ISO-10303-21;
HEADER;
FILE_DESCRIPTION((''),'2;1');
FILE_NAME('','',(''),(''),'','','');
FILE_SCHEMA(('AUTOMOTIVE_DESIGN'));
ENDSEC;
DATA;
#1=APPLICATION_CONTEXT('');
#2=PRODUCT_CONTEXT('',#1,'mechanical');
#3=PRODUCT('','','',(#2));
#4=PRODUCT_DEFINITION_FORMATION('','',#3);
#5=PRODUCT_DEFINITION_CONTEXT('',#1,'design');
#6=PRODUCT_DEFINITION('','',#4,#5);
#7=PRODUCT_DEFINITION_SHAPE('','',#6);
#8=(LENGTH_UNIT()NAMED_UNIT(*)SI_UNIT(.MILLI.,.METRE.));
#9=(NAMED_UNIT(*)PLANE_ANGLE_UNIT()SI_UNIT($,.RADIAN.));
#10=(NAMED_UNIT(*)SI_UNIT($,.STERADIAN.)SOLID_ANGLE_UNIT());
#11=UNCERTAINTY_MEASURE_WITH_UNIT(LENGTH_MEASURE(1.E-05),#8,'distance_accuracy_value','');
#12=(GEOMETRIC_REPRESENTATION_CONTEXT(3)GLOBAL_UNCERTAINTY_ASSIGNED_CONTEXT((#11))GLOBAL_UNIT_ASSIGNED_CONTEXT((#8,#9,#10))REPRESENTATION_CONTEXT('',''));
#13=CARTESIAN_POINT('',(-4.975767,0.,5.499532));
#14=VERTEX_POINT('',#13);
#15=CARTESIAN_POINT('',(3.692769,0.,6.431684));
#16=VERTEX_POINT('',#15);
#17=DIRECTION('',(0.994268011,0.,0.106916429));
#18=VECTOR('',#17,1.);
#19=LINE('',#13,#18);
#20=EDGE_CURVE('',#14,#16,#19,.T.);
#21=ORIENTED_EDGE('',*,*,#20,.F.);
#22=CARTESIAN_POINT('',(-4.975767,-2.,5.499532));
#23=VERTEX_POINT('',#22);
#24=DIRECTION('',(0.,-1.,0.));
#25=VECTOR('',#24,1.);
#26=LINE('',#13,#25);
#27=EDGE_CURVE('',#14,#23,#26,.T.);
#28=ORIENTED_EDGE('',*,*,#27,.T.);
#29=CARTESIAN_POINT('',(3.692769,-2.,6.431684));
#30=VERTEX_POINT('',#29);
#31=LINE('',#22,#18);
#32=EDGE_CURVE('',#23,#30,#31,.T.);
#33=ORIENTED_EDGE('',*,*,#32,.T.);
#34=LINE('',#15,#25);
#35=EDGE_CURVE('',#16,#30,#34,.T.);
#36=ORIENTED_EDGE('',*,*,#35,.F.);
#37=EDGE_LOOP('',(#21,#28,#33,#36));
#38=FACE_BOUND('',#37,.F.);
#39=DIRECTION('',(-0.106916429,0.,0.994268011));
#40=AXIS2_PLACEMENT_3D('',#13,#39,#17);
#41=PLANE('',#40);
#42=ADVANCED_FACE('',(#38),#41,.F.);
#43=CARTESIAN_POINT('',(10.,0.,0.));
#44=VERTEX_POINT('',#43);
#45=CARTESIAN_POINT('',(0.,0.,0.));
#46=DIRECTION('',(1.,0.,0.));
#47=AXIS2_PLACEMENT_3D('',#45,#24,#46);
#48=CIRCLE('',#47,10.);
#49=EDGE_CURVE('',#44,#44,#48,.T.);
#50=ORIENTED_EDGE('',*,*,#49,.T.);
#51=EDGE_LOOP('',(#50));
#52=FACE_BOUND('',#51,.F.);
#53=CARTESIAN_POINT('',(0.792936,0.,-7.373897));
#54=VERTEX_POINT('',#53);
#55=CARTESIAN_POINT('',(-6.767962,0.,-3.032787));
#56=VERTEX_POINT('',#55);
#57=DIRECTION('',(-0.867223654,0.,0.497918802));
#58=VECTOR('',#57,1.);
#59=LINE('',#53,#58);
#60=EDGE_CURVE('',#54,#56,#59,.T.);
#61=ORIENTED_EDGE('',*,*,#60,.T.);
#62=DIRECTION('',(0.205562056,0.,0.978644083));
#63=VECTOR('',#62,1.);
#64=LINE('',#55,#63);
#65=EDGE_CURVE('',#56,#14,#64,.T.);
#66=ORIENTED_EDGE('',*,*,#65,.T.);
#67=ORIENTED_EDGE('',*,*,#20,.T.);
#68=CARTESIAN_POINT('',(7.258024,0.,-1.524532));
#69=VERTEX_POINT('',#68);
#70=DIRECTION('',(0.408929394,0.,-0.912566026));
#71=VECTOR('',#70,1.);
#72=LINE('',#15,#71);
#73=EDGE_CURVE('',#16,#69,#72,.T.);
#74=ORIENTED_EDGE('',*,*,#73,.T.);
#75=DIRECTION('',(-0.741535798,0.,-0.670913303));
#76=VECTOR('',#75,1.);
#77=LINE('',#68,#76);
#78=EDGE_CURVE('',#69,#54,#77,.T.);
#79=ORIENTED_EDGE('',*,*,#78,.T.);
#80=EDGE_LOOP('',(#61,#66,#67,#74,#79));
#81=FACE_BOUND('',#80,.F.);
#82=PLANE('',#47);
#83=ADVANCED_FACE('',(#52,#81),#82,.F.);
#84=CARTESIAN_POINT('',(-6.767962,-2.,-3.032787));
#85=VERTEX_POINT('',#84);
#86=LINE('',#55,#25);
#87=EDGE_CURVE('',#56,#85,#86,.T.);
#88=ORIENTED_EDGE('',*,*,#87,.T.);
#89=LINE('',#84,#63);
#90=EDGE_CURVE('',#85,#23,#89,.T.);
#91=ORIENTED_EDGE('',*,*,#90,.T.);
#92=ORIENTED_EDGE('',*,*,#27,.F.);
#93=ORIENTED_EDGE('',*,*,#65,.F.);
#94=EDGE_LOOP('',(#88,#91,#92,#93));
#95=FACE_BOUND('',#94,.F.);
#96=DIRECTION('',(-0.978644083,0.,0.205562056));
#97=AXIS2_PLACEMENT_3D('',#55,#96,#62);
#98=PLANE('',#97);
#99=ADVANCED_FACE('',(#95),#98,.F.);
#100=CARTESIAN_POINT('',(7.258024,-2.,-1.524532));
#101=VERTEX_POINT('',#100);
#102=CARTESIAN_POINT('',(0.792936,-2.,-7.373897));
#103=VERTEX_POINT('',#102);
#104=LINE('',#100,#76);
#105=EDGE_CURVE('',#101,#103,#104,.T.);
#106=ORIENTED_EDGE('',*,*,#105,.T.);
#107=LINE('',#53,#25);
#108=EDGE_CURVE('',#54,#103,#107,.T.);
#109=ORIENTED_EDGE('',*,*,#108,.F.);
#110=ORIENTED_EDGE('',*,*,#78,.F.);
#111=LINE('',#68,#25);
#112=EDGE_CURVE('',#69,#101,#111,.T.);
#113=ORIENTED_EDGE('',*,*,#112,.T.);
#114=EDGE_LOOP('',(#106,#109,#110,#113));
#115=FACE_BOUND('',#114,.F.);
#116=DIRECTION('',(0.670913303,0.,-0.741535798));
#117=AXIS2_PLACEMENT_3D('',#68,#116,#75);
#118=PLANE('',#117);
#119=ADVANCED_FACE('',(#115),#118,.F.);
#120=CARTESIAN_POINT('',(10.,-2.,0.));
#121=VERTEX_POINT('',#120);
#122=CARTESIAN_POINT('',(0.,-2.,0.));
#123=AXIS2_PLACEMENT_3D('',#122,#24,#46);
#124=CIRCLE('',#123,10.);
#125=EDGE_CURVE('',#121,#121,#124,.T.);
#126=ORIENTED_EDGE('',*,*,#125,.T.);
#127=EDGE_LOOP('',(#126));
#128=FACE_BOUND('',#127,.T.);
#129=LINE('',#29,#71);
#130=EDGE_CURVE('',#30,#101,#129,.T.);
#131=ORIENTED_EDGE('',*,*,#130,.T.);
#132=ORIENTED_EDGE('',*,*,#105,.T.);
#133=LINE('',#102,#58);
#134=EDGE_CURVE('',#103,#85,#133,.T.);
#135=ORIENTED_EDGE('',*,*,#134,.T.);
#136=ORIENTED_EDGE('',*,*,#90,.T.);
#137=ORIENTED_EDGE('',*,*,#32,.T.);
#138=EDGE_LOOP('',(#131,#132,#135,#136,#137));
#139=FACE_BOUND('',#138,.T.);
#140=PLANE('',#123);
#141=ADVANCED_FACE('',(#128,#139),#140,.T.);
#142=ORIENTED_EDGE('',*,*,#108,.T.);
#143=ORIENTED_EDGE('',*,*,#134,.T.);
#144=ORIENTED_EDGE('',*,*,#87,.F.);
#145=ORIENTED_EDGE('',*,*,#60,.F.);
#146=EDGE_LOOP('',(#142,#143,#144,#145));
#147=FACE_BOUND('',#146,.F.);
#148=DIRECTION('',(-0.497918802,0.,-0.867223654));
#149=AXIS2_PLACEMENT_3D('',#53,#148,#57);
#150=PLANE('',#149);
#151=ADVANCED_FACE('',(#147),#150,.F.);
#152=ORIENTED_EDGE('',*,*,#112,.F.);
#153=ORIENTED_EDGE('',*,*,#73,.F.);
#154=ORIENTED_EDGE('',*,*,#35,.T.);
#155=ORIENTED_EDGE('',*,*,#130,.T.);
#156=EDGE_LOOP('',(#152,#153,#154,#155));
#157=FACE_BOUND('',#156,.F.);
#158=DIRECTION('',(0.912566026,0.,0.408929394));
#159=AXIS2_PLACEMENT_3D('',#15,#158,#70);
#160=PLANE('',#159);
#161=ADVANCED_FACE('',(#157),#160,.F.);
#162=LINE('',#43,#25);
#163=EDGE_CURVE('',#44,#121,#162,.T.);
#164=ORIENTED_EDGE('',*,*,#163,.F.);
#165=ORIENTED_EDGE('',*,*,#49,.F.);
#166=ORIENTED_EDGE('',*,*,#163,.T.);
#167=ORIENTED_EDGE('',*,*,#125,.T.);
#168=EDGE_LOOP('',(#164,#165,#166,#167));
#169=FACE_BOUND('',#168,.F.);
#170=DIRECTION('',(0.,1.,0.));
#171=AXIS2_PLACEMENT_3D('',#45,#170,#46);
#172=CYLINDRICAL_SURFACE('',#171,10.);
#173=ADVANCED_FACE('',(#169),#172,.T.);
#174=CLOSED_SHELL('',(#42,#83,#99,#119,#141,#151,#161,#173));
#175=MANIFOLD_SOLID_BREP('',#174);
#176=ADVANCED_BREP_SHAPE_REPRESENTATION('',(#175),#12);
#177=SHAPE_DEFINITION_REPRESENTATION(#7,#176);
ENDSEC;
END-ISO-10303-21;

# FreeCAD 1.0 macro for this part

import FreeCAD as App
import Part
import Sketcher

V = App.Vector


def add_polygon(sketch, points):
    """Adds a closed chain of lines whose ends are joined by coincident constraints."""
    first, n = sketch.GeometryCount, len(points)
    for a, b in zip(points, points[1:] + points[:1]):
        sketch.addGeometry(Part.LineSegment(App.Vector(*a, 0), App.Vector(*b, 0)), False)
    for i in range(n):
        sketch.addConstraint(Sketcher.Constraint("Coincident", first + i, 2, first + (i + 1) % n, 1))

doc = App.newDocument("Part")
body = doc.addObject("PartDesign::Body", "Body")

# Sketch on XZ plane
sketch1 = body.newObject("Sketcher::SketchObject", "Sketch")
sketch1.AttachmentSupport = (doc.getObject("XZ_Plane"), [""])
sketch1.MapMode = "FlatFace"
sketch1.addGeometry(Part.Circle(V(0, 0, 0), V(0, 0, 1), 10), False)  # 0
add_polygon(sketch1, [(-4.975767, 5.499532), (3.692769, 6.431684), (7.258024, -1.524532), (0.792936, -7.373897), (-6.767962, -3.032787)])  # lines 1-5
sketch1.addConstraint(Sketcher.Constraint("Coincident", 0, 3, -1, 1))
sketch1.addConstraint(Sketcher.Constraint("Equal", 1, 2))
sketch1.addConstraint(Sketcher.Constraint("Equal", 2, 3))
sketch1.addConstraint(Sketcher.Constraint("Equal", 3, 4))
sketch1.addConstraint(Sketcher.Constraint("Equal", 4, 5))
sketch1.addConstraint(Sketcher.Constraint("Diameter", 0, 20.0))
sketch1.addConstraint(Sketcher.Constraint("Distance", 1, 8.71851))
sketch1.addConstraint(Sketcher.Constraint("DistanceX", -1, 1, 1, 2, 3.692769))
sketch1.addConstraint(Sketcher.Constraint("DistanceX", 4, 2, -1, 1, 6.767962))
sketch1.addConstraint(Sketcher.Constraint("DistanceY", 3, 2, 1, 2, 13.805581))
sketch1.addConstraint(Sketcher.Constraint("DistanceY", 3, 2, 4, 2, 4.34111))
sketch1.addConstraint(Sketcher.Constraint("DistanceY", -1, 1, 1, 2, 6.431684))
pad1 = body.newObject("PartDesign::Pad", "Pad")
pad1.Profile = sketch1
pad1.Length = 2

doc.recompute()
